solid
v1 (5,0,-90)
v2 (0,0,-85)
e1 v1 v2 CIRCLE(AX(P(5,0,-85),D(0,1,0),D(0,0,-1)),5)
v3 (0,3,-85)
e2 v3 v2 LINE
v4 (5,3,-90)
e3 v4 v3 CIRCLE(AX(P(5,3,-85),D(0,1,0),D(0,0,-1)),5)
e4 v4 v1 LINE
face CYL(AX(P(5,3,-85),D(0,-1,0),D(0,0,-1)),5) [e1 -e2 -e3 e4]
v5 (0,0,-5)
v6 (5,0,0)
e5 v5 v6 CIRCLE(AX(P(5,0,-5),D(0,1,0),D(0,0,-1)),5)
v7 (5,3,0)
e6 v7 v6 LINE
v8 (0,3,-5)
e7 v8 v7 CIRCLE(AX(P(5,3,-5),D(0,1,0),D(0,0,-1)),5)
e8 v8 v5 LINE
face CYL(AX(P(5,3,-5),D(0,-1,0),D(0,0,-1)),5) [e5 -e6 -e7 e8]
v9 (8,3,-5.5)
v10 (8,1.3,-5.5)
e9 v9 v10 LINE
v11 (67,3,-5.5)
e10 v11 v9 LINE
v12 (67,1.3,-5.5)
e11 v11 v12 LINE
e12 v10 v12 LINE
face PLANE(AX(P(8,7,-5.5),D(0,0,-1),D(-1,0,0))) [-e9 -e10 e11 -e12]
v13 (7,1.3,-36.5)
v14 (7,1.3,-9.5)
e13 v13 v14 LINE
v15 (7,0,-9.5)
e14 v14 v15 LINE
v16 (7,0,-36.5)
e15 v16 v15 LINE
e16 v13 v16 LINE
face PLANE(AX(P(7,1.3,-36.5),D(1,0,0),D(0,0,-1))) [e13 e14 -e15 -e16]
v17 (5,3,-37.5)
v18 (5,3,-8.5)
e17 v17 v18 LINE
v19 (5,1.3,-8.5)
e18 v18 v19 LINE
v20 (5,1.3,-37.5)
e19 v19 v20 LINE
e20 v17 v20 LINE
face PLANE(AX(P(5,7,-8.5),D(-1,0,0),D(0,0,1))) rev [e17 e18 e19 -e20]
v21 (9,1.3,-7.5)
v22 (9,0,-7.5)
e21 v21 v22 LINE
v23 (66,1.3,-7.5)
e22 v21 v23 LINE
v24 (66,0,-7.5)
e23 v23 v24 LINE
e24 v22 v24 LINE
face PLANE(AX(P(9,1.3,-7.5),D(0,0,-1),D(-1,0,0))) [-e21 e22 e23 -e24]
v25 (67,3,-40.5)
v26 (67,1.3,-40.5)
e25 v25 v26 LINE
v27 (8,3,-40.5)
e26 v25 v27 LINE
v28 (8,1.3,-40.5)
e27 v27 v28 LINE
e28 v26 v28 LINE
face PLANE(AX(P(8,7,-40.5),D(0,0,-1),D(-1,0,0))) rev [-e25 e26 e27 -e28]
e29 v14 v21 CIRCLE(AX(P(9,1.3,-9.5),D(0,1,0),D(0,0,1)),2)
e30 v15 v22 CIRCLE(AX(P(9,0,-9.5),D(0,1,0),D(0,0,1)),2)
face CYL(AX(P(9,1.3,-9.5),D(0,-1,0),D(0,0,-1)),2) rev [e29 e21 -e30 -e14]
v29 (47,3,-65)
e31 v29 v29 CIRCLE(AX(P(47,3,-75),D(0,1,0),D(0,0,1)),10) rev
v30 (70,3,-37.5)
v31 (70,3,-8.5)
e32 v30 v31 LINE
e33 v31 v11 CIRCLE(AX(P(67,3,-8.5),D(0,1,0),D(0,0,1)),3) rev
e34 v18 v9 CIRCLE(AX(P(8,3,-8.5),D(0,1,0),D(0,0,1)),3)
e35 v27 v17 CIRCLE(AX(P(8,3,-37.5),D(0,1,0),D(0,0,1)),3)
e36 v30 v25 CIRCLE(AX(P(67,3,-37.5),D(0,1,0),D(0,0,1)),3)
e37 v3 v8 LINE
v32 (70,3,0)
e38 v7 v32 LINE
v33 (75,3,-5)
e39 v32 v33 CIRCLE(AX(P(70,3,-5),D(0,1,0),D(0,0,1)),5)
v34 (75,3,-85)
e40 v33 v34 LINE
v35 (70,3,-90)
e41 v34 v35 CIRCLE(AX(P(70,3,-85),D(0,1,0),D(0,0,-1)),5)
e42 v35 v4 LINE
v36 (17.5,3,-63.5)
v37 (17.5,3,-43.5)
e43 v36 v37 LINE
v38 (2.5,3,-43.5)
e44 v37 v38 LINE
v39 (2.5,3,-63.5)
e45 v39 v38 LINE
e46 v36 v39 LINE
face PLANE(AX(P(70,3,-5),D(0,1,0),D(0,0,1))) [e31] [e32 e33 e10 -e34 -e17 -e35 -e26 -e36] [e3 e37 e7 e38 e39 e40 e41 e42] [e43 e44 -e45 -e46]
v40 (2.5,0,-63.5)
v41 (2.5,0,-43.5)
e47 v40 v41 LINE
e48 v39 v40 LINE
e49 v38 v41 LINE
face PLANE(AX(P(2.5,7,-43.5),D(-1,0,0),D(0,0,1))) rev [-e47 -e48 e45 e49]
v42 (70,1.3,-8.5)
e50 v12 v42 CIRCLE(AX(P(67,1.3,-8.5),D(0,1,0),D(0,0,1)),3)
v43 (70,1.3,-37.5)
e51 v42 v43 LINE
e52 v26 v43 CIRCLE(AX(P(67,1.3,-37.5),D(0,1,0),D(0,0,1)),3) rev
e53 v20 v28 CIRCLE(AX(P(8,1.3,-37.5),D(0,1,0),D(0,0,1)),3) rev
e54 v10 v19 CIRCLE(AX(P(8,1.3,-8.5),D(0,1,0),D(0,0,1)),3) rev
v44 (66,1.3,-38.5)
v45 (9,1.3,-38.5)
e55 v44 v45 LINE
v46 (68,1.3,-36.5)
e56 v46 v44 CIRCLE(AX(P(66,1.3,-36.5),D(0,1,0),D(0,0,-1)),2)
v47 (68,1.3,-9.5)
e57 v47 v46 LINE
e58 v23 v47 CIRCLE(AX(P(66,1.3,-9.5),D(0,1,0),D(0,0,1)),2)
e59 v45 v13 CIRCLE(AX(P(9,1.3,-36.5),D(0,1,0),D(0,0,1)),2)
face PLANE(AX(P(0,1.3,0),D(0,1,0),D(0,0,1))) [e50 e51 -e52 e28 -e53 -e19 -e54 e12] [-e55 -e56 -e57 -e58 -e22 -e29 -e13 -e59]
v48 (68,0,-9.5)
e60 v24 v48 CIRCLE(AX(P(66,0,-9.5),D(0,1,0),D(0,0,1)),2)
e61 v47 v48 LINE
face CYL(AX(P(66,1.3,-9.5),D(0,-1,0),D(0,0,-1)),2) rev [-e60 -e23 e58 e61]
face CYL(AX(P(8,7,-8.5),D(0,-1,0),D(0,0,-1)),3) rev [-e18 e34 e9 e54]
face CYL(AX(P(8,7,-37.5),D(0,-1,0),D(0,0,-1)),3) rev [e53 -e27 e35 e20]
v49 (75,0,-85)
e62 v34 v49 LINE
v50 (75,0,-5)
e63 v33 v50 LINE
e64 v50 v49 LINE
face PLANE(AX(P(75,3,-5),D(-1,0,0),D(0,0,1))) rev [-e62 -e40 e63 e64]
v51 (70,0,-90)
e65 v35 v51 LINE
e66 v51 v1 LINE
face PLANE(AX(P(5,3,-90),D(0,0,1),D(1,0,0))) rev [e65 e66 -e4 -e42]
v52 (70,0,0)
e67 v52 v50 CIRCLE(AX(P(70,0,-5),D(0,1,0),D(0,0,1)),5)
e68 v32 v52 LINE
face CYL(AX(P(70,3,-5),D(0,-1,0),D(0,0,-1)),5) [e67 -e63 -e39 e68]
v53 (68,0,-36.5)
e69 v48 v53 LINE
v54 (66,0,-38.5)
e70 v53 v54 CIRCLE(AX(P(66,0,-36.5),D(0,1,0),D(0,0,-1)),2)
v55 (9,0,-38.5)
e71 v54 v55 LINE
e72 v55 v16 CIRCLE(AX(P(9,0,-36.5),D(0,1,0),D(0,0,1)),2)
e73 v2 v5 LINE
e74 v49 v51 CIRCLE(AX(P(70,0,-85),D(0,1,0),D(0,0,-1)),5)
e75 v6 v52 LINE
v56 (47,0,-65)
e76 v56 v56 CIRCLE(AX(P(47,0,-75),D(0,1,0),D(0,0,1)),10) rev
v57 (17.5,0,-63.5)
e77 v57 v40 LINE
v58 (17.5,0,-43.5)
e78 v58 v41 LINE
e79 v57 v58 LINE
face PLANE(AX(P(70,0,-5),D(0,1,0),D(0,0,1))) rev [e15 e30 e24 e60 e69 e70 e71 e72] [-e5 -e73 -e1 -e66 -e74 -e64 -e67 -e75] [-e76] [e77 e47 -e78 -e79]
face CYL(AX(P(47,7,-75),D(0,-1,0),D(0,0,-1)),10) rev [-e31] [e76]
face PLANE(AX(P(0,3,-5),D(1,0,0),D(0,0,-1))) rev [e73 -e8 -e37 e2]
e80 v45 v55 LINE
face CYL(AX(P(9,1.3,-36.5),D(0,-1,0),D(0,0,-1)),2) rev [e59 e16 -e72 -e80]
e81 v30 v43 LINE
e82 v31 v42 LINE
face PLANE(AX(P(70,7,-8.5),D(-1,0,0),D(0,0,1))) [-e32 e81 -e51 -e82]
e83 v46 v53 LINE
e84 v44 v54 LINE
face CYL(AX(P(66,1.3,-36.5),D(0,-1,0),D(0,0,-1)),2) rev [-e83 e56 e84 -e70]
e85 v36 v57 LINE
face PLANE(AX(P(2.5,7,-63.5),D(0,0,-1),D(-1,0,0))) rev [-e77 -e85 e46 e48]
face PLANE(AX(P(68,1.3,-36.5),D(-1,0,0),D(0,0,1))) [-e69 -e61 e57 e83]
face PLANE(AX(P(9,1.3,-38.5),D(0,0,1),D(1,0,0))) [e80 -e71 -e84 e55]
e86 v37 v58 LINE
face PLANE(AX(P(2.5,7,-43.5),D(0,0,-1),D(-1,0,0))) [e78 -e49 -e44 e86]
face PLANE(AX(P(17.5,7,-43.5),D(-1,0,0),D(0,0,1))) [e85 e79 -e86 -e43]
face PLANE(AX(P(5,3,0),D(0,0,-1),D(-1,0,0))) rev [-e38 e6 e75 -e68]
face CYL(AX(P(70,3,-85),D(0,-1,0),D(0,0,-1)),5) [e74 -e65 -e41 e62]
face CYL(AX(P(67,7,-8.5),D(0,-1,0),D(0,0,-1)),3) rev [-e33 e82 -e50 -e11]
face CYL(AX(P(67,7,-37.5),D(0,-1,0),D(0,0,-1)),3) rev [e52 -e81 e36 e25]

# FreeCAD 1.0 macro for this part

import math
import FreeCAD as App
import Part
import Sketcher
from FreeCAD import Vector
Q = App.Units.Quantity


def add_polygon(sketch, points):
    """Adds a closed chain of lines whose ends are joined by coincident constraints."""
    first, n = sketch.GeometryCount, len(points)
    for a, b in zip(points, points[1:] + points[:1]):
        sketch.addGeometry(Part.LineSegment(App.Vector(*a, 0), App.Vector(*b, 0)), False)
    for i in range(n):
        sketch.addConstraint(Sketcher.Constraint("Coincident", first + i, 2, first + (i + 1) % n, 1))

doc = App.newDocument("Part")
body = doc.addObject("PartDesign::Body", "Body")

# Sketch on XZ plane
sketch1 = body.newObject("Sketcher::SketchObject", "Sketch")
sketch1.AttachmentSupport = (doc.getObject("XZ_Plane"), [""])
sketch1.MapMode = "FlatFace"
sketch1.addGeometry([
    Part.LineSegment(Vector(5, 0, 0), Vector(70, 0, 0)),  # 0
    Part.ArcOfCircle(Part.Circle(Vector(70, -5, 0), Vector(0, 0, 1), 5), math.radians(0), math.radians(90)),  # 1
    Part.LineSegment(Vector(75, -5, 0), Vector(75, -85, 0)),  # 2
    Part.ArcOfCircle(Part.Circle(Vector(70, -85, 0), Vector(0, 0, 1), 5), math.radians(-90), math.radians(0)),  # 3
    Part.LineSegment(Vector(70, -90, 0), Vector(5, -90, 0)),  # 4
    Part.ArcOfCircle(Part.Circle(Vector(5, -85, 0), Vector(0, 0, 1), 5), math.radians(180), math.radians(270)),  # 5
    Part.LineSegment(Vector(0, -85, 0), Vector(0, -5, 0)),  # 6
    Part.ArcOfCircle(Part.Circle(Vector(5, -5, 0), Vector(0, 0, 1), 5), math.radians(90), math.radians(180)),  # 7
], False)
sketch1.addConstraint([
    Sketcher.Constraint("Tangent", 0, 2, 1, 2),
    Sketcher.Constraint("Tangent", 1, 1, 2, 1),
    Sketcher.Constraint("Tangent", 2, 2, 3, 2),
    Sketcher.Constraint("Tangent", 3, 1, 4, 1),
    Sketcher.Constraint("Tangent", 4, 2, 5, 2),
    Sketcher.Constraint("Tangent", 5, 1, 6, 1),
    Sketcher.Constraint("Tangent", 6, 2, 7, 2),
    Sketcher.Constraint("Tangent", 7, 1, 0, 1),
    Sketcher.Constraint("Horizontal", 0),
    Sketcher.Constraint("Vertical", 2),
    Sketcher.Constraint("Horizontal", 4),
    Sketcher.Constraint("Vertical", 6),
    Sketcher.Constraint("Equal", 1, 3),
    Sketcher.Constraint("Equal", 3, 5),
    Sketcher.Constraint("Equal", 5, 7),
    Sketcher.Constraint("PointOnObject", 0, 2, -1),
    Sketcher.Constraint("PointOnObject", 5, 1, -2),
    Sketcher.Constraint("Radius", 1, Q("5 mm")),
    Sketcher.Constraint("DistanceX", 0, 1, 0, 2, Q("65 mm")),
    Sketcher.Constraint("DistanceY", 2, 2, 2, 1, Q("80 mm")),
])
pad1 = body.newObject("PartDesign::Pad", "Pad")
pad1.Profile = sketch1
pad1.Length = 3
pad1.Reversed = True

# Sketch on XZ plane
sketch2 = body.newObject("Sketcher::SketchObject", "Sketch001")
sketch2.AttachmentSupport = (doc.getObject("XZ_Plane"), [""])
sketch2.MapMode = "FlatFace"
sketch2.addGeometry(Part.Circle(Vector(47, -75, 0), Vector(0, 0, 1), 10), False)  # 0
sketch2.addGeometry(Part.LineSegment(Vector(8, -5.5, 0), Vector(67, -5.5, 0)), False)  # 1
sketch2.addGeometry(Part.ArcOfCircle(Part.Circle(Vector(67, -8.5, 0), Vector(0, 0, 1), 3), math.radians(0), math.radians(90)), False)  # 2
sketch2.addGeometry(Part.LineSegment(Vector(70, -8.5, 0), Vector(70, -37.5, 0)), False)  # 3
sketch2.addGeometry(Part.ArcOfCircle(Part.Circle(Vector(67, -37.5, 0), Vector(0, 0, 1), 3), math.radians(-90), math.radians(0)), False)  # 4
sketch2.addGeometry(Part.LineSegment(Vector(67, -40.5, 0), Vector(8, -40.5, 0)), False)  # 5
sketch2.addGeometry(Part.ArcOfCircle(Part.Circle(Vector(8, -37.5, 0), Vector(0, 0, 1), 3), math.radians(180), math.radians(270)), False)  # 6
sketch2.addGeometry(Part.LineSegment(Vector(5, -37.5, 0), Vector(5, -8.5, 0)), False)  # 7
sketch2.addGeometry(Part.ArcOfCircle(Part.Circle(Vector(8, -8.5, 0), Vector(0, 0, 1), 3), math.radians(90), math.radians(180)), False)  # 8
add_polygon(sketch2, [(2.5, -63.5), (2.5, -43.5), (17.5, -43.5), (17.5, -63.5)])  # lines 9-12
sketch2.addConstraint([
    Sketcher.Constraint("Tangent", 1, 2, 2, 2),
    Sketcher.Constraint("Tangent", 2, 1, 3, 1),
    Sketcher.Constraint("Tangent", 3, 2, 4, 2),
    Sketcher.Constraint("Tangent", 4, 1, 5, 1),
    Sketcher.Constraint("Tangent", 5, 2, 6, 2),
    Sketcher.Constraint("Tangent", 6, 1, 7, 1),
    Sketcher.Constraint("Tangent", 7, 2, 8, 2),
    Sketcher.Constraint("Tangent", 8, 1, 1, 1),
    Sketcher.Constraint("Horizontal", 1),
    Sketcher.Constraint("Vertical", 3),
    Sketcher.Constraint("Horizontal", 5),
    Sketcher.Constraint("Vertical", 7),
    Sketcher.Constraint("Vertical", 9),
    Sketcher.Constraint("Horizontal", 10),
    Sketcher.Constraint("Vertical", 11),
    Sketcher.Constraint("Horizontal", 12),
    Sketcher.Constraint("Equal", 2, 4),
    Sketcher.Constraint("Equal", 4, 6),
    Sketcher.Constraint("Equal", 6, 8),
    Sketcher.Constraint("Diameter", 0, Q("20 mm")),
    Sketcher.Constraint("Radius", 2, Q("3 mm")),
    Sketcher.Constraint("DistanceX", 1, 1, 1, 2, Q("59 mm")),
    Sketcher.Constraint("DistanceX", 10, 1, 10, 2, Q("15 mm")),
    Sketcher.Constraint("DistanceY", 3, 2, 3, 1, Q("29 mm")),
    Sketcher.Constraint("DistanceY", 9, 1, 9, 2, Q("20 mm")),
    Sketcher.Constraint("DistanceX", -1, 1, 0, 3, Q("47 mm")),
    Sketcher.Constraint("DistanceY", 0, 3, -1, 1, Q("75 mm")),
    Sketcher.Constraint("DistanceX", -1, 1, 2, 3, Q("67 mm")),
    Sketcher.Constraint("DistanceY", 9, 2, 5, 2, Q("3 mm")),
    Sketcher.Constraint("DistanceY", 2, 3, -1, 1, Q("8.5 mm")),
    Sketcher.Constraint("DistanceX", -1, 1, 9, 2, Q("2.5 mm")),
])
pocket1 = body.newObject("PartDesign::Pocket", "Pocket")
pocket1.Profile = sketch2
pocket1.Type = "ThroughAll"
pocket1.Midplane = True

# Sketch on XZ plane
sketch3 = body.newObject("Sketcher::SketchObject", "Sketch002")
sketch3.AttachmentSupport = (doc.getObject("XZ_Plane"), [""])
sketch3.MapMode = "FlatFace"
add_polygon(sketch3, [(5, -40.5), (5, -5.5), (70, -5.5), (70, -40.5)])  # lines 0-3
sketch3.addGeometry(Part.ArcOfCircle(Part.Circle(Vector(9, -36.5, 0), Vector(0, 0, 1), 2), math.radians(-180), math.radians(-90)), False)  # 4
sketch3.addGeometry(Part.LineSegment(Vector(9, -38.5, 0), Vector(66, -38.5, 0)), False)  # 5
sketch3.addGeometry(Part.ArcOfCircle(Part.Circle(Vector(66, -36.5, 0), Vector(0, 0, 1), 2), math.radians(-90), math.radians(0)), False)  # 6
sketch3.addGeometry(Part.LineSegment(Vector(68, -36.5, 0), Vector(68, -9.5, 0)), False)  # 7
sketch3.addGeometry(Part.ArcOfCircle(Part.Circle(Vector(66, -9.5, 0), Vector(0, 0, 1), 2), math.radians(0), math.radians(90)), False)  # 8
sketch3.addGeometry(Part.LineSegment(Vector(66, -7.5, 0), Vector(9, -7.5, 0)), False)  # 9
sketch3.addGeometry(Part.ArcOfCircle(Part.Circle(Vector(9, -9.5, 0), Vector(0, 0, 1), 2), math.radians(90), math.radians(180)), False)  # 10
sketch3.addGeometry(Part.LineSegment(Vector(7, -9.5, 0), Vector(7, -36.5, 0)), False)  # 11
sketch3.addConstraint([
    Sketcher.Constraint("Tangent", 4, 2, 5, 1),
    Sketcher.Constraint("Tangent", 5, 2, 6, 1),
    Sketcher.Constraint("Tangent", 6, 2, 7, 1),
    Sketcher.Constraint("Tangent", 7, 2, 8, 1),
    Sketcher.Constraint("Tangent", 8, 2, 9, 1),
    Sketcher.Constraint("Tangent", 9, 2, 10, 1),
    Sketcher.Constraint("Tangent", 10, 2, 11, 1),
    Sketcher.Constraint("Tangent", 11, 2, 4, 1),
    Sketcher.Constraint("Vertical", 0),
    Sketcher.Constraint("Horizontal", 1),
    Sketcher.Constraint("Vertical", 2),
    Sketcher.Constraint("Horizontal", 3),
    Sketcher.Constraint("Horizontal", 5),
    Sketcher.Constraint("Vertical", 7),
    Sketcher.Constraint("Horizontal", 9),
    Sketcher.Constraint("Vertical", 11),
    Sketcher.Constraint("Equal", 4, 6),
    Sketcher.Constraint("Equal", 6, 8),
    Sketcher.Constraint("Equal", 8, 10),
    Sketcher.Constraint("Radius", 4, Q("2 mm")),
    Sketcher.Constraint("DistanceX", 1, 1, 1, 2, Q("65 mm")),
    Sketcher.Constraint("DistanceX", 5, 1, 5, 2, Q("57 mm")),
    Sketcher.Constraint("DistanceY", 0, 1, 0, 2, Q("35 mm")),
    Sketcher.Constraint("DistanceY", 7, 1, 7, 2, Q("27 mm")),
    Sketcher.Constraint("DistanceX", -1, 1, 4, 3, Q("9 mm")),
    Sketcher.Constraint("DistanceX", -1, 1, 0, 2, Q("5 mm")),
    Sketcher.Constraint("DistanceY", 10, 3, 0, 2, Q("4 mm")),
    Sketcher.Constraint("DistanceY", 4, 3, -1, 1, Q("36.5 mm")),
])
pad2 = body.newObject("PartDesign::Pad", "Pad001")
pad2.Profile = sketch3
pad2.Length = 1.3
pad2.Reversed = True

doc.recompute()
